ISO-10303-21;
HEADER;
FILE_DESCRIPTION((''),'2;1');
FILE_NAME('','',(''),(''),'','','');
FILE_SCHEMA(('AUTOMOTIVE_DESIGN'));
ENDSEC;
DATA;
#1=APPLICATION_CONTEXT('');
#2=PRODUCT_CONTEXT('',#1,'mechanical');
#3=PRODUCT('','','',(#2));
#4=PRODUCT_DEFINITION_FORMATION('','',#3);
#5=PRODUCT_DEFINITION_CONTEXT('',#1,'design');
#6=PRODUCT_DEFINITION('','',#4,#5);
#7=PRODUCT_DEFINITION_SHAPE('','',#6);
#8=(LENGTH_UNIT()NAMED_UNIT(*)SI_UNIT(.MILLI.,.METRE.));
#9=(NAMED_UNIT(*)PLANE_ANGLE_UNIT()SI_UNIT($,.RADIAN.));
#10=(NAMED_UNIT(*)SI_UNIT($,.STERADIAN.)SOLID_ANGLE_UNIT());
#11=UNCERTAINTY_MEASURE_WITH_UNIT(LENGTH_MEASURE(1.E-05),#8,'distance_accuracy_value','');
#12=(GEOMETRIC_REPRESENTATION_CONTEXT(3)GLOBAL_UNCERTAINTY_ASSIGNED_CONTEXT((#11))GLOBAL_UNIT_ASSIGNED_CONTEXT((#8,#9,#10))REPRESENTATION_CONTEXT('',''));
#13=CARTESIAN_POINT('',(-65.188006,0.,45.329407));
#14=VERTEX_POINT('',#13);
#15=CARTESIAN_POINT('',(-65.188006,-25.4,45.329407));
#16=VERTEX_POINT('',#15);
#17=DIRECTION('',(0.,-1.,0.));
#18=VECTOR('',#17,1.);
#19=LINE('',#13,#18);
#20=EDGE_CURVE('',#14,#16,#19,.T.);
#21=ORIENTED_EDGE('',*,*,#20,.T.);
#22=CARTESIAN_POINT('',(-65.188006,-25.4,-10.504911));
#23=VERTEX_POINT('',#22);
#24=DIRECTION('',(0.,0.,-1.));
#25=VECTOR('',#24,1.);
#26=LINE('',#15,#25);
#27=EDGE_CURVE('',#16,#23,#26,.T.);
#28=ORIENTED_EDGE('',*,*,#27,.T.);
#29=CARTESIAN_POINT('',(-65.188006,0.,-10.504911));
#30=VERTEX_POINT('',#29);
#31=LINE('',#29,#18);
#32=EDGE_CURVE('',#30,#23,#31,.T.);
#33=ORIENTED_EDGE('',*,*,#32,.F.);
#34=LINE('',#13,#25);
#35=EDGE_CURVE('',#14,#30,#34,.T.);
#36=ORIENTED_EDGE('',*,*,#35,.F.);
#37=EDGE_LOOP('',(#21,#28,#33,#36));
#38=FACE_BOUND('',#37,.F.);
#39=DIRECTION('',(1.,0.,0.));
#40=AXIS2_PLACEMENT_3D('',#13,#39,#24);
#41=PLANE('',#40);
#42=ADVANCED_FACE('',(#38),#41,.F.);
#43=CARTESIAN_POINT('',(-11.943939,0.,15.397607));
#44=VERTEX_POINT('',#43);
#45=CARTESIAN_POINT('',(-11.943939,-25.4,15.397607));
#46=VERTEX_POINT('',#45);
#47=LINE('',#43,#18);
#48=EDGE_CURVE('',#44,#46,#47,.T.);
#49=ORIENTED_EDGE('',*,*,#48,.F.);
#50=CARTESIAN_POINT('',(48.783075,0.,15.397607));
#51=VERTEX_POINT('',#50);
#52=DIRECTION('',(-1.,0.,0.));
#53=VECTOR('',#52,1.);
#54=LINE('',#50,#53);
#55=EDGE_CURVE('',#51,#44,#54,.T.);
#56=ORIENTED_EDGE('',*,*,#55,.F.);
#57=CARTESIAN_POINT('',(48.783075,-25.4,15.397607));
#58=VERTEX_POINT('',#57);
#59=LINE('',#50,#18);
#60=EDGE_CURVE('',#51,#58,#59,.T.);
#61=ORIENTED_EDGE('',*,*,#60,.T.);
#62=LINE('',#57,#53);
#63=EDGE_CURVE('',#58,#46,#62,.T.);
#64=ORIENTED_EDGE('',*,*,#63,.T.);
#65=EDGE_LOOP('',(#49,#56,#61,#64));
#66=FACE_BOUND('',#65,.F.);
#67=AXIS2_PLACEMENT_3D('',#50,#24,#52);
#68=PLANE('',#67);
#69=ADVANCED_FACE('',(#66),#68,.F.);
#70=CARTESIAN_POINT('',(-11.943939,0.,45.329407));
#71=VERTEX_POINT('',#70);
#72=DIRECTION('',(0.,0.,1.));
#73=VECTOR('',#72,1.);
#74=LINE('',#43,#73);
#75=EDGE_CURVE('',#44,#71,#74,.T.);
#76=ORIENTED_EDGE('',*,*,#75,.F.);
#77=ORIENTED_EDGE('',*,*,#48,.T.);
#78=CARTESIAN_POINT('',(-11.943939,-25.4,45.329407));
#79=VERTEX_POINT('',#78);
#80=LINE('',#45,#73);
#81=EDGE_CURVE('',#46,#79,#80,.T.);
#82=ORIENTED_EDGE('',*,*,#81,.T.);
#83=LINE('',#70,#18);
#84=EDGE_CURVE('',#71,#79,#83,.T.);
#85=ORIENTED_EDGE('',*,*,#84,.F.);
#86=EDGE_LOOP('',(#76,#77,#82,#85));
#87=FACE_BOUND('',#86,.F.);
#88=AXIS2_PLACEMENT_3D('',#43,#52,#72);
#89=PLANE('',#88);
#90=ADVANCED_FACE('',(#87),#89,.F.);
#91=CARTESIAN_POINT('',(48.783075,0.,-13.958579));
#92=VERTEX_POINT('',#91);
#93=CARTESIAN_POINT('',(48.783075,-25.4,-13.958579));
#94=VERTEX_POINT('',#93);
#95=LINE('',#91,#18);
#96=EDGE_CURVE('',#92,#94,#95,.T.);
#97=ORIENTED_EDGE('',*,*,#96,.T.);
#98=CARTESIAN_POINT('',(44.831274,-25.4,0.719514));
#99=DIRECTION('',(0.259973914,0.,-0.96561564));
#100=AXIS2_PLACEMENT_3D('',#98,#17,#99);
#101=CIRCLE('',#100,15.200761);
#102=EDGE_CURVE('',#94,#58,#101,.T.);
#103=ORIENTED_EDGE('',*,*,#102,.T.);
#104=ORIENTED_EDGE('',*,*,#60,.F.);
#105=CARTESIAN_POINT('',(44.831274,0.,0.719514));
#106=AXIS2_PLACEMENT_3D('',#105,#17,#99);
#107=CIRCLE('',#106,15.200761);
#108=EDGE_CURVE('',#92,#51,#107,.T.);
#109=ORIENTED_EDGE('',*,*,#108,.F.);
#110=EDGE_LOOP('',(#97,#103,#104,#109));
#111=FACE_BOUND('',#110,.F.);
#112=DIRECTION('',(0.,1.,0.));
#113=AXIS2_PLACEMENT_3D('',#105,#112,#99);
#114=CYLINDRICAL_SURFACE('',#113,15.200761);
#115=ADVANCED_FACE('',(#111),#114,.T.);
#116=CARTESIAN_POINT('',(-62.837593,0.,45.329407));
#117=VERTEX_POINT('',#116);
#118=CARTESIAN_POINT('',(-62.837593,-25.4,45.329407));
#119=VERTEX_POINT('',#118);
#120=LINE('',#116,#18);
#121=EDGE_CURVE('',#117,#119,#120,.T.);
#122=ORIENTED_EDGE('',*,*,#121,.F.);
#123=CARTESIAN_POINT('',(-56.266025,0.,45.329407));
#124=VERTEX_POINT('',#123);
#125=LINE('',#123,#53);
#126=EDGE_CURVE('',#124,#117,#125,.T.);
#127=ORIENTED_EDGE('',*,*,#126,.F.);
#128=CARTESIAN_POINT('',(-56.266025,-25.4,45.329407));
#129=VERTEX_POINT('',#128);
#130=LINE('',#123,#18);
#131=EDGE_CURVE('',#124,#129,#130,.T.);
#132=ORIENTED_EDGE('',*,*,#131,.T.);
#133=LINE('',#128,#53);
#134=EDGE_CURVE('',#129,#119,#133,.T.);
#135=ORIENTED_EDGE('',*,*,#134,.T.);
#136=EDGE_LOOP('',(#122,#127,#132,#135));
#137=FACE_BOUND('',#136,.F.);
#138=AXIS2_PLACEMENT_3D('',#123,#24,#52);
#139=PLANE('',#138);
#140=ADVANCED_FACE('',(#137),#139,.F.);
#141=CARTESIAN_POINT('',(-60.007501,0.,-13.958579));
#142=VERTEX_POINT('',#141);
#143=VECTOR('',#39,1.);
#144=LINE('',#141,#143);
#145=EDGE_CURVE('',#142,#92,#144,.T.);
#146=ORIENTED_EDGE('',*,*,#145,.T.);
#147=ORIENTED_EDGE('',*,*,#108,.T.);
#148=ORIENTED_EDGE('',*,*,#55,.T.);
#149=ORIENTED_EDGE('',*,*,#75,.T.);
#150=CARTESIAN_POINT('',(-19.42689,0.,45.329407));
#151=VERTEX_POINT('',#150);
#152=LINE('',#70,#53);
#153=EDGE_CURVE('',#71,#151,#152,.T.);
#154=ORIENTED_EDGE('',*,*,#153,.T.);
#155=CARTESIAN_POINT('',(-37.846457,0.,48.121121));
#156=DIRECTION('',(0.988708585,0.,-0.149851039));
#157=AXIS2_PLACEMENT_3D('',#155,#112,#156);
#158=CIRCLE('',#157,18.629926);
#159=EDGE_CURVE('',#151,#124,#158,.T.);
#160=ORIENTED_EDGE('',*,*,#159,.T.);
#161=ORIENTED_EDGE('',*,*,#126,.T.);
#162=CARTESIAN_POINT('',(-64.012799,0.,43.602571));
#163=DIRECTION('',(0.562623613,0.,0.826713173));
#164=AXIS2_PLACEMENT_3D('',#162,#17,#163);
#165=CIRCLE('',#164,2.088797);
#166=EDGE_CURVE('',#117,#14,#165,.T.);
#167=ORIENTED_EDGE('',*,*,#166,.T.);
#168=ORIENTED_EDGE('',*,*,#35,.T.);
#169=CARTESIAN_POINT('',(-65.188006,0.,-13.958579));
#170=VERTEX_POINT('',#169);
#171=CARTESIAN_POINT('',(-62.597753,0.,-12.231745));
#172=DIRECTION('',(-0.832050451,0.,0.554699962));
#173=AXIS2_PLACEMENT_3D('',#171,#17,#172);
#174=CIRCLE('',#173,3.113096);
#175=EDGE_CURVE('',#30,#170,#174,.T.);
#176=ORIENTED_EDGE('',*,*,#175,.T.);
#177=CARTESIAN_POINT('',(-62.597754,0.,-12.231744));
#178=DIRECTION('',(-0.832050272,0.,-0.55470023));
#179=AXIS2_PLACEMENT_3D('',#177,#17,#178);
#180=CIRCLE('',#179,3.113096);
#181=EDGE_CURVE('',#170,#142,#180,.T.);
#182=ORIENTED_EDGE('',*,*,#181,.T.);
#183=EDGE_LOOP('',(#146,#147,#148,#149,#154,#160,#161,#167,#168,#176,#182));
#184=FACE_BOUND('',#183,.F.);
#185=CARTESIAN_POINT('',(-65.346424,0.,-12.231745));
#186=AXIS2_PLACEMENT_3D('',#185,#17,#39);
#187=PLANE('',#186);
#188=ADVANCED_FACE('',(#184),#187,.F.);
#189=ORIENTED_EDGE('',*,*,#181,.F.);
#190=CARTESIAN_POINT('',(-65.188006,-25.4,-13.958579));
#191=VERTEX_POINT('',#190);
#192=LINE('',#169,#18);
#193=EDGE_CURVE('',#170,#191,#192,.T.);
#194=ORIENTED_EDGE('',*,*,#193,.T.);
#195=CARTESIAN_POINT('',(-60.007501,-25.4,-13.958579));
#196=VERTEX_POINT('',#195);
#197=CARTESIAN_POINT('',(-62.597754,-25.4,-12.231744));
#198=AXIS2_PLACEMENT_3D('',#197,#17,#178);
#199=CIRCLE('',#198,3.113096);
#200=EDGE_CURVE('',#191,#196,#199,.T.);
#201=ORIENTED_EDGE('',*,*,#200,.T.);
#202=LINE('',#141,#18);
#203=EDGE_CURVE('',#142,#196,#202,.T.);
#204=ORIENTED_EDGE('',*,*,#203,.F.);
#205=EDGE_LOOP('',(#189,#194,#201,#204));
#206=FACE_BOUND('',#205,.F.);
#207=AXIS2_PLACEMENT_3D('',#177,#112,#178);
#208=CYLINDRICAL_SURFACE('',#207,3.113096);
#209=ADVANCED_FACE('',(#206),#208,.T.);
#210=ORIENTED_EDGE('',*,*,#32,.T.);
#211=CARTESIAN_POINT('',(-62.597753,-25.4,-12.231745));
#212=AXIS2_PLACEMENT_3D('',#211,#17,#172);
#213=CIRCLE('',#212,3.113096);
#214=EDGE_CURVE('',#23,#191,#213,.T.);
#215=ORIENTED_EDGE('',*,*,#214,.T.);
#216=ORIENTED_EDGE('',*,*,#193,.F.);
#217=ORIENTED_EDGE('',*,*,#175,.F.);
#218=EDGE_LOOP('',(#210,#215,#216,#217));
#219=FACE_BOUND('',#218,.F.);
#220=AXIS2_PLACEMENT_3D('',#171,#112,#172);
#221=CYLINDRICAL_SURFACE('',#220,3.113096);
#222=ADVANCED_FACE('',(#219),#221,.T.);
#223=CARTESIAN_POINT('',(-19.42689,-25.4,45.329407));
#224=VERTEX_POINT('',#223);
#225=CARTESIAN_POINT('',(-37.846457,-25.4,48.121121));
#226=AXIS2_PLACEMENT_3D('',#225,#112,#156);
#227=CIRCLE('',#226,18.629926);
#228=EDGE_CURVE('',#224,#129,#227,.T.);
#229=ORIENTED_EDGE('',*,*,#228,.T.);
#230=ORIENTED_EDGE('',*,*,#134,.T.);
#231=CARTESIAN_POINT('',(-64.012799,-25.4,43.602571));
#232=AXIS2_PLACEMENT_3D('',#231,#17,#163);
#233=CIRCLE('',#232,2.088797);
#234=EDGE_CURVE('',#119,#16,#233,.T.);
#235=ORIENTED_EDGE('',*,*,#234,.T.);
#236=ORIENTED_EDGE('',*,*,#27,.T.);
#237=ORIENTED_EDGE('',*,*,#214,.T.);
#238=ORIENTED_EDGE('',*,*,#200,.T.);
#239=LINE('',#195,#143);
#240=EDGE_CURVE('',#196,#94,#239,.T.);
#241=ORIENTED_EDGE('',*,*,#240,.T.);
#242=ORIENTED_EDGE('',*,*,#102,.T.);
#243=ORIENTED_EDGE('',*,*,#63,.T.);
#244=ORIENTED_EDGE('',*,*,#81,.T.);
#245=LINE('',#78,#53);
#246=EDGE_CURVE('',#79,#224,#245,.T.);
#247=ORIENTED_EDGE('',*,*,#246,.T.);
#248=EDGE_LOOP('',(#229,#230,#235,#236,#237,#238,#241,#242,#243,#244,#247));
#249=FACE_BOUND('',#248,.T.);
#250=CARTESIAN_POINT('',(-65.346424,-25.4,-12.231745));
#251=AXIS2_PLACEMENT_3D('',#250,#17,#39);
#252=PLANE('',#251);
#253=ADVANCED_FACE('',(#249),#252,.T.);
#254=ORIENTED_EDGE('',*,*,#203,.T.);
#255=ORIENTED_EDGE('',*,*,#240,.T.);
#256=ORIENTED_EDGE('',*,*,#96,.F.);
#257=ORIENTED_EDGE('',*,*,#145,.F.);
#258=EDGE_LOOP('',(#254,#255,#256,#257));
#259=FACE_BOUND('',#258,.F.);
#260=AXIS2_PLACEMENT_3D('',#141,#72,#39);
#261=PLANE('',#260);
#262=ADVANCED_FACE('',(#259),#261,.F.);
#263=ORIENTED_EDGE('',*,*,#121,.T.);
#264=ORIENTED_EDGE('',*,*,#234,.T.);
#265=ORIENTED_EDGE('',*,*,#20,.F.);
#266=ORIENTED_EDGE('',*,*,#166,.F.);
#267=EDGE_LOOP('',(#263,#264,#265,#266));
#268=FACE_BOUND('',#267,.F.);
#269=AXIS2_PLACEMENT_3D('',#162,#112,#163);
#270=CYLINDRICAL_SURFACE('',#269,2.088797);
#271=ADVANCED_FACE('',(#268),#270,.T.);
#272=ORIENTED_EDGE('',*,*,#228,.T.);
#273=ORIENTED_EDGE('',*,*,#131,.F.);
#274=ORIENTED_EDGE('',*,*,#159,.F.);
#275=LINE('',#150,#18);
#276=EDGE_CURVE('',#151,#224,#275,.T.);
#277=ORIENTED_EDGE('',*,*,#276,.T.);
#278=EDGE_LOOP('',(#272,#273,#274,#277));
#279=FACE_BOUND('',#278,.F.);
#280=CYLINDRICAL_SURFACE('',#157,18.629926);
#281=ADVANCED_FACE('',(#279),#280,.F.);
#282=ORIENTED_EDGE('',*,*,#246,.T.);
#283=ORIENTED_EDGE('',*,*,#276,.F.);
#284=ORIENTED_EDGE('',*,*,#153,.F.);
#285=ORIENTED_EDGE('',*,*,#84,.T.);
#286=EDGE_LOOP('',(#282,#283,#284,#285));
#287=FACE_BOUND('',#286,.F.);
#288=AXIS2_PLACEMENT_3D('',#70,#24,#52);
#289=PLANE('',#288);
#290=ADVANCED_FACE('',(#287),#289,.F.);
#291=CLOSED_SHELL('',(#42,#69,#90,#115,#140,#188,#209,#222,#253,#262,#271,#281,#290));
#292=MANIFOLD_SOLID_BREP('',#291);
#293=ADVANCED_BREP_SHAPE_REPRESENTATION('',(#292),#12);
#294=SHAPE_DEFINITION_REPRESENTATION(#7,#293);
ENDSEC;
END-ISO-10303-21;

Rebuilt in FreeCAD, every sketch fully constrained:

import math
import FreeCAD as App
import Part
import Sketcher

V = App.Vector
Q = App.Units.Quantity

doc = App.newDocument("Part")
body = doc.addObject("PartDesign::Body", "Body")

sketch1 = doc.addObject("Sketcher::SketchObject", "Sketch")
body.addObject(sketch1)
sketch1.AttachmentSupport = (doc.XZ_Plane, [""])
sketch1.MapMode = "FlatFace"
sketch1.addGeometry(Part.ArcOfCircle(Part.Circle(V(-62.597753, -12.231745, 0), V(0, 0, 1), 3.113096), math.radians(146.309949), math.radians(213.690051)), False)
sketch1.addGeometry(Part.ArcOfCircle(Part.Circle(V(-62.597754, -12.231744, 0), V(0, 0, 1), 3.113096), math.radians(-146.30993), math.radians(-33.69007)), False)
sketch1.addGeometry(Part.LineSegment(V(-60.007501, -13.958579, 0), V(48.783075, -13.958579, 0)), False)
sketch1.addGeometry(Part.ArcOfCircle(Part.Circle(V(44.831274, 0.719514, 0), V(0, 0, 1), 15.200761), math.radians(-74.931486), math.radians(74.931486)), False)
sketch1.addGeometry(Part.LineSegment(V(48.783075, 15.397607, 0), V(-11.943939, 15.397607, 0)), False)
sketch1.addGeometry(Part.LineSegment(V(-11.943939, 15.397607, 0), V(-11.943939, 45.329407, 0)), False)
sketch1.addGeometry(Part.LineSegment(V(-11.943939, 45.329407, 0), V(-19.42689, 45.329407, 0)), False)
sketch1.addGeometry(Part.ArcOfCircle(Part.Circle(V(-37.846457, 48.121121, 0), V(0, 0, 1), 18.629926), math.radians(-171.381706), math.radians(-8.618294)), False)
sketch1.addGeometry(Part.LineSegment(V(-56.266025, 45.329407, 0), V(-62.837593, 45.329407, 0)), False)
sketch1.addGeometry(Part.ArcOfCircle(Part.Circle(V(-64.012799, 43.602571, 0), V(0, 0, 1), 2.088797), math.radians(55.762567), math.radians(124.237433)), False)
sketch1.addGeometry(Part.LineSegment(V(-65.188006, 45.329407, 0), V(-65.188006, -10.504911, 0)), False)
sketch1.addConstraint(Sketcher.Constraint("Tangent", 0, 2, 1, 1))
sketch1.addConstraint(Sketcher.Constraint("Coincident", 1, 2, 2, 1))
sketch1.addConstraint(Sketcher.Constraint("Coincident", 2, 2, 3, 1))
sketch1.addConstraint(Sketcher.Constraint("Coincident", 3, 2, 4, 1))
sketch1.addConstraint(Sketcher.Constraint("Coincident", 4, 2, 5, 1))
sketch1.addConstraint(Sketcher.Constraint("Coincident", 5, 2, 6, 1))
sketch1.addConstraint(Sketcher.Constraint("Coincident", 6, 2, 7, 2))
sketch1.addConstraint(Sketcher.Constraint("Coincident", 7, 1, 8, 1))
sketch1.addConstraint(Sketcher.Constraint("Coincident", 8, 2, 9, 1))
sketch1.addConstraint(Sketcher.Constraint("Coincident", 9, 2, 10, 1))
sketch1.addConstraint(Sketcher.Constraint("Coincident", 10, 2, 0, 1))
sketch1.addConstraint(Sketcher.Constraint("Horizontal", 2))
sketch1.addConstraint(Sketcher.Constraint("Horizontal", 4))
sketch1.addConstraint(Sketcher.Constraint("Vertical", 5))
sketch1.addConstraint(Sketcher.Constraint("Horizontal", 6))
sketch1.addConstraint(Sketcher.Constraint("Horizontal", 8))
sketch1.addConstraint(Sketcher.Constraint("Vertical", 10))
sketch1.addConstraint(Sketcher.Constraint("Equal", 0, 1))
sketch1.addConstraint(Sketcher.Constraint("Horizontal", 0, 2, 1, 2))
sketch1.addConstraint(Sketcher.Constraint("Horizontal", 6, 2, 7, 1))
sketch1.addConstraint(Sketcher.Constraint("Horizontal", 8, 2, 9, 2))
sketch1.addConstraint(Sketcher.Constraint("Vertical", 2, 2, 3, 2))
sketch1.addConstraint(Sketcher.Constraint("Vertical", 0, 2, 9, 2))
sketch1.addConstraint(Sketcher.Constraint("Radius", 3, Q("15.200761 mm")))
sketch1.addConstraint(Sketcher.Constraint("DistanceY", 5, 1, 5, 2, Q("29.9318 mm")))
sketch1.addConstraint(Sketcher.Constraint("DistanceX", 1, 2, -1, 1, Q("2.3625 in")))
sketch1.addConstraint(Sketcher.Constraint("Radius", 0, Q("3.113096 mm")))
sketch1.addConstraint(Sketcher.Constraint("Radius", 7, Q("18.629926 mm")))
sketch1.addConstraint(Sketcher.Constraint("Radius", 9, Q("2.088797 mm")))
sketch1.addConstraint(Sketcher.Constraint("DistanceX", 6, 2, 6, 1, Q("7.482951 mm")))
sketch1.addConstraint(Sketcher.Constraint("DistanceY", 10, 2, 10, 1, Q("55.834318 mm")))
sketch1.addConstraint(Sketcher.Constraint("DistanceX", 9, 3, -1, 1, Q("64.012799 mm")))
sketch1.addConstraint(Sketcher.Constraint("DistanceY", 0, 2, 7, 3, Q("62.0797 mm")))
sketch1.addConstraint(Sketcher.Constraint("DistanceX", 3, 3, 2, 2, Q("3.951801 mm")))
sketch1.addConstraint(Sketcher.Constraint("DistanceX", 2, 1, 2, 2, Q("108.790576 mm")))
sketch1.addConstraint(Sketcher.Constraint("DistanceX", 4, 2, 4, 1, Q("60.727014 mm")))
sketch1.addConstraint(Sketcher.Constraint("DistanceY", -1, 1, 7, 3, Q("48.121121 mm")))
pad1 = doc.addObject("PartDesign::Pad", "Pad")
body.addObject(pad1)
pad1.Profile = sketch1
pad1.Length = Q("1 in")

doc.recompute()
